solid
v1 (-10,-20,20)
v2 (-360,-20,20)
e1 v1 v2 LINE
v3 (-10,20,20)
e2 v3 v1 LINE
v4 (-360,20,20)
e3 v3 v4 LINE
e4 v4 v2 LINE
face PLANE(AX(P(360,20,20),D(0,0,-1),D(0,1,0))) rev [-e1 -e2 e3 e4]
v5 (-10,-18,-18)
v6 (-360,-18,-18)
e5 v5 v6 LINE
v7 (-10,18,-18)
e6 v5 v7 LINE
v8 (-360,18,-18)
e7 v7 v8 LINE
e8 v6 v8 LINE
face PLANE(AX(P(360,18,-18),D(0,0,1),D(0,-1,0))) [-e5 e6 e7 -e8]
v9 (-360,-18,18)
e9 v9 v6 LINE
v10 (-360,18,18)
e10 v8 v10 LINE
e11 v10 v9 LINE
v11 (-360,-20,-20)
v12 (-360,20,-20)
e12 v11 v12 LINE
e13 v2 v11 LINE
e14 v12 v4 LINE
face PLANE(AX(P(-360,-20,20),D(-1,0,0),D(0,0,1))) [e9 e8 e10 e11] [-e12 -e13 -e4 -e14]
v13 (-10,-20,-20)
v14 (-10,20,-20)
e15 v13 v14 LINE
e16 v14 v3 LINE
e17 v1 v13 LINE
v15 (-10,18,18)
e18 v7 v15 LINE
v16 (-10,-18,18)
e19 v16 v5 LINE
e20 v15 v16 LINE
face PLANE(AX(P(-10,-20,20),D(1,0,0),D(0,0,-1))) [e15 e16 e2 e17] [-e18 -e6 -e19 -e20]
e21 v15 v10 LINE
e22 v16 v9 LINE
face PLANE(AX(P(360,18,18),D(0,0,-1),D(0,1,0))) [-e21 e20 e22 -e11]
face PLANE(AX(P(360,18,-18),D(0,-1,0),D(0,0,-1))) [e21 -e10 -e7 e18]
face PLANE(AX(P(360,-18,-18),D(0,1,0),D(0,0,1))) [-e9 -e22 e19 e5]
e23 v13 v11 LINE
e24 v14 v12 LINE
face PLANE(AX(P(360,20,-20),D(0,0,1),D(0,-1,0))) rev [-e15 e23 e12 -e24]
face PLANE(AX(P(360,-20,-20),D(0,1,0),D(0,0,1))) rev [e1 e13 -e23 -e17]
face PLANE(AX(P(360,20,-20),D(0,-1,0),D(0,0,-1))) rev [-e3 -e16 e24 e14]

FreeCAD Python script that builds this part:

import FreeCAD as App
import Part
import Sketcher
from FreeCAD import Vector

doc = App.newDocument("Part")
body = doc.addObject("PartDesign::Body", "Body")

# Sketch on YZ plane
sketch1 = body.newObject("Sketcher::SketchObject", "Sketch")
sketch1.AttachmentSupport = (doc.getObject("YZ_Plane"), [""])
sketch1.MapMode = "FlatFace"
sketch1.addGeometry(Part.LineSegment(Vector(20, 20, 0), Vector(-20, 20, 0)), False)
sketch1.addGeometry(Part.LineSegment(Vector(-20, 20, 0), Vector(-20, -20, 0)), False)
sketch1.addGeometry(Part.LineSegment(Vector(-20, -20, 0), Vector(20, -20, 0)), False)
sketch1.addGeometry(Part.LineSegment(Vector(20, -20, 0), Vector(20, 20, 0)), False)
sketch1.addGeometry(Part.LineSegment(Vector(-18, -18, 0), Vector(-18, 18, 0)), False)
sketch1.addGeometry(Part.LineSegment(Vector(-18, 18, 0), Vector(18, 18, 0)), False)
sketch1.addGeometry(Part.LineSegment(Vector(18, 18, 0), Vector(18, -18, 0)), False)
sketch1.addGeometry(Part.LineSegment(Vector(18, -18, 0), Vector(-18, -18, 0)), False)
sketch1.addConstraint(Sketcher.Constraint("Coincident", 0, 2, 1, 1))
sketch1.addConstraint(Sketcher.Constraint("Coincident", 1, 2, 2, 1))
sketch1.addConstraint(Sketcher.Constraint("Coincident", 2, 2, 3, 1))
sketch1.addConstraint(Sketcher.Constraint("Coincident", 3, 2, 0, 1))
sketch1.addConstraint(Sketcher.Constraint("Coincident", 4, 2, 5, 1))
sketch1.addConstraint(Sketcher.Constraint("Coincident", 5, 2, 6, 1))
sketch1.addConstraint(Sketcher.Constraint("Coincident", 6, 2, 7, 1))
sketch1.addConstraint(Sketcher.Constraint("Coincident", 7, 2, 4, 1))
sketch1.addConstraint(Sketcher.Constraint("Horizontal", 0))
sketch1.addConstraint(Sketcher.Constraint("Vertical", 1))
sketch1.addConstraint(Sketcher.Constraint("Horizontal", 2))
sketch1.addConstraint(Sketcher.Constraint("Vertical", 3))
sketch1.addConstraint(Sketcher.Constraint("Vertical", 4))
sketch1.addConstraint(Sketcher.Constraint("Horizontal", 5))
sketch1.addConstraint(Sketcher.Constraint("Vertical", 6))
sketch1.addConstraint(Sketcher.Constraint("Horizontal", 7))
sketch1.addConstraint(Sketcher.Constraint("Symmetric", 0, 2, 2, 2, -1, 1))
sketch1.addConstraint(Sketcher.Constraint("Symmetric", 4, 2, 6, 2, -1, 1))
sketch1.addConstraint(Sketcher.Constraint("Equal", 2, 1))
sketch1.addConstraint(Sketcher.Constraint("Equal", 7, 4))
sketch1.addConstraint(Sketcher.Constraint("DistanceX", 0, 2, 0, 1, 40.0))
sketch1.addConstraint(Sketcher.Constraint("DistanceX", 5, 1, 5, 2, 36.0))
pad1 = body.newObject("PartDesign::Pad", "Pad")
pad1.Profile = sketch1
pad1.Length = 720
pad1.Midplane = True

# Sketch on YZ plane
sketch2 = body.newObject("Sketcher::SketchObject", "Sketch001")
sketch2.AttachmentSupport = (doc.getObject("YZ_Plane"), [""])
sketch2.MapMode = "FlatFace"
sketch2.AttachmentOffset = App.Placement(Vector(0, 0, 360), App.Rotation())
sketch2.addGeometry(Part.LineSegment(Vector(20, 20, 0), Vector(-20, 20, 0)), False)
sketch2.addGeometry(Part.LineSegment(Vector(-20, 20, 0), Vector(-20, -20, 0)), False)
sketch2.addGeometry(Part.LineSegment(Vector(-20, -20, 0), Vector(20, -20, 0)), False)
sketch2.addGeometry(Part.LineSegment(Vector(20, -20, 0), Vector(20, 20, 0)), False)
sketch2.addGeometry(Part.LineSegment(Vector(-18, -18, 0), Vector(-18, 18, 0)), False)
sketch2.addGeometry(Part.LineSegment(Vector(-18, 18, 0), Vector(18, 18, 0)), False)
sketch2.addGeometry(Part.LineSegment(Vector(18, 18, 0), Vector(18, -18, 0)), False)
sketch2.addGeometry(Part.LineSegment(Vector(18, -18, 0), Vector(-18, -18, 0)), False)
sketch2.addConstraint(Sketcher.Constraint("Coincident", 0, 2, 1, 1))
sketch2.addConstraint(Sketcher.Constraint("Coincident", 1, 2, 2, 1))
sketch2.addConstraint(Sketcher.Constraint("Coincident", 2, 2, 3, 1))
sketch2.addConstraint(Sketcher.Constraint("Coincident", 3, 2, 0, 1))
sketch2.addConstraint(Sketcher.Constraint("Coincident", 4, 2, 5, 1))
sketch2.addConstraint(Sketcher.Constraint("Coincident", 5, 2, 6, 1))
sketch2.addConstraint(Sketcher.Constraint("Coincident", 6, 2, 7, 1))
sketch2.addConstraint(Sketcher.Constraint("Coincident", 7, 2, 4, 1))
sketch2.addConstraint(Sketcher.Constraint("Horizontal", 0))
sketch2.addConstraint(Sketcher.Constraint("Vertical", 1))
sketch2.addConstraint(Sketcher.Constraint("Horizontal", 2))
sketch2.addConstraint(Sketcher.Constraint("Vertical", 3))
sketch2.addConstraint(Sketcher.Constraint("Vertical", 4))
sketch2.addConstraint(Sketcher.Constraint("Horizontal", 5))
sketch2.addConstraint(Sketcher.Constraint("Vertical", 6))
sketch2.addConstraint(Sketcher.Constraint("Horizontal", 7))
sketch2.addConstraint(Sketcher.Constraint("Symmetric", 0, 2, 2, 2, -1, 1))
sketch2.addConstraint(Sketcher.Constraint("Symmetric", 4, 2, 6, 2, -1, 1))
sketch2.addConstraint(Sketcher.Constraint("Equal", 2, 1))
sketch2.addConstraint(Sketcher.Constraint("Equal", 7, 4))
sketch2.addConstraint(Sketcher.Constraint("DistanceX", 0, 2, 0, 1, 40.0))
sketch2.addConstraint(Sketcher.Constraint("DistanceX", 5, 1, 5, 2, 36.0))
pocket1 = body.newObject("PartDesign::Pocket", "Pocket")
pocket1.Profile = sketch2
pocket1.Length = 370

doc.recompute()
